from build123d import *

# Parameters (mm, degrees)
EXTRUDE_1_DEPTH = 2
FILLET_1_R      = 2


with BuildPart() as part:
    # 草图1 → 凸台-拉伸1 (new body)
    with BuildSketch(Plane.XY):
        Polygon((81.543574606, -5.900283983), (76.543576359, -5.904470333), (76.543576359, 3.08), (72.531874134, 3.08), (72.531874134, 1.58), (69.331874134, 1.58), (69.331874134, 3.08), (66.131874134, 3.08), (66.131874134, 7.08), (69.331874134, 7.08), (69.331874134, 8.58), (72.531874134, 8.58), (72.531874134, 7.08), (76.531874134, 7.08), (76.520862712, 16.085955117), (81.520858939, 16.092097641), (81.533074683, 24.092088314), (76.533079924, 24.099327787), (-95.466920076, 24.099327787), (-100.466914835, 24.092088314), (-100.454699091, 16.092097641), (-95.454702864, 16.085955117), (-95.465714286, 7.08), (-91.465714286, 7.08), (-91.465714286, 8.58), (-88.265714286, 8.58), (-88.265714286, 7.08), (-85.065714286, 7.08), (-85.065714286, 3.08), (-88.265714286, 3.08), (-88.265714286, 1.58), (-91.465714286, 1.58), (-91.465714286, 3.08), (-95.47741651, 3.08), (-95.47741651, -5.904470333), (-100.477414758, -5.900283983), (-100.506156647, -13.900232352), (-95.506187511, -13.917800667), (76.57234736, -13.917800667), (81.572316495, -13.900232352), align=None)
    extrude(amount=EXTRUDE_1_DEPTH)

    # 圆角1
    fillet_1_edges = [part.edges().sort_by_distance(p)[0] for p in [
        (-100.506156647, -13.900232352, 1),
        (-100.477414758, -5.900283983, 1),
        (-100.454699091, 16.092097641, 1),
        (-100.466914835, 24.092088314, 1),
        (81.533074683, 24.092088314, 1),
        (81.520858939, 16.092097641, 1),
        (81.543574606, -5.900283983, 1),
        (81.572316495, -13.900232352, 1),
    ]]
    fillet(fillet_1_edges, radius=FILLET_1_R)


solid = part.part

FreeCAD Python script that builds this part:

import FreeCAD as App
import Part
import Sketcher
from FreeCAD import Vector
Q = App.Units.Quantity


def edges_at(feature, points):
    """Names of the edges that pass closest to the given points."""
    edges = feature.Shape.Edges
    near = lambda p: min(range(len(edges)), key=lambda i: edges[i].distToShape(Part.Vertex(*p))[0])
    return sorted({f"Edge{near(p) + 1}" for p in points})


def add_polygon(sketch, points):
    """Adds a closed chain of lines whose ends are joined by coincident constraints."""
    first, n = sketch.GeometryCount, len(points)
    for a, b in zip(points, points[1:] + points[:1]):
        sketch.addGeometry(Part.LineSegment(App.Vector(*a, 0), App.Vector(*b, 0)), False)
    for i in range(n):
        sketch.addConstraint(Sketcher.Constraint("Coincident", first + i, 2, first + (i + 1) % n, 1))

doc = App.newDocument("Part")
body = doc.addObject("PartDesign::Body", "Body")

# Sketch on XY plane
sketch1 = body.newObject("Sketcher::SketchObject", "Sketch")
sketch1.AttachmentSupport = (doc.getObject("XY_Plane"), [""])
sketch1.MapMode = "FlatFace"
add_polygon(sketch1, [(81.5, -5.9), (76.5, -5.9), (76.5, 3.1), (72.5, 3.1), (72.5, 1.6), (69.3, 1.6), (69.3, 3.1), (66.1, 3.1), (66.1, 7.1), (69.3, 7.1), (69.3, 8.6), (72.5, 8.6), (72.5, 7.1), (76.5, 7.1), (76.5, 16.1), (81.5, 16.1), (81.5, 24.1), (76.5, 24.1), (-95.5, 24.1), (-100.5, 24.1), (-100.5, 16.1), (-95.5, 16.1), (-95.5, 7.1), (-91.5, 7.1), (-91.5, 8.6), (-88.3, 8.6), (-88.3, 7.1), (-85.1, 7.1), (-85.1, 3.1), (-88.3, 3.1), (-88.3, 1.6), (-91.5, 1.6), (-91.5, 3.1), (-95.5, 3.1), (-95.5, -5.9), (-100.5, -5.9), (-100.5, -13.9), (-95.5, -13.9), (76.6, -13.9), (81.6, -13.9)])  # lines 0-39
sketch1.addConstraint([
    Sketcher.Constraint("Vertical", 1),
    Sketcher.Constraint("Horizontal", 2),
    Sketcher.Constraint("Vertical", 3),
    Sketcher.Constraint("Horizontal", 4),
    Sketcher.Constraint("Vertical", 5),
    Sketcher.Constraint("Horizontal", 6),
    Sketcher.Constraint("Vertical", 7),
    Sketcher.Constraint("Horizontal", 8),
    Sketcher.Constraint("Vertical", 9),
    Sketcher.Constraint("Horizontal", 10),
    Sketcher.Constraint("Vertical", 11),
    Sketcher.Constraint("Horizontal", 12),
    Sketcher.Constraint("Horizontal", 17),
    Sketcher.Constraint("Horizontal", 22),
    Sketcher.Constraint("Vertical", 23),
    Sketcher.Constraint("Horizontal", 24),
    Sketcher.Constraint("Vertical", 25),
    Sketcher.Constraint("Horizontal", 26),
    Sketcher.Constraint("Vertical", 27),
    Sketcher.Constraint("Horizontal", 28),
    Sketcher.Constraint("Vertical", 29),
    Sketcher.Constraint("Horizontal", 30),
    Sketcher.Constraint("Vertical", 31),
    Sketcher.Constraint("Horizontal", 32),
    Sketcher.Constraint("Vertical", 33),
    Sketcher.Constraint("Horizontal", 37),
    Sketcher.Constraint("Horizontal", 2, 2, 5, 2),
    Sketcher.Constraint("Horizontal", 8, 2, 11, 2),
    Sketcher.Constraint("Horizontal", 15, 2, 18, 2),
    Sketcher.Constraint("Horizontal", 14, 2, 19, 2),
    Sketcher.Constraint("Horizontal", 13, 2, 20, 2),
    Sketcher.Constraint("Horizontal", 12, 2, 21, 2),
    Sketcher.Constraint("Horizontal", 10, 2, 23, 2),
    Sketcher.Constraint("Horizontal", 22, 2, 25, 2),
    Sketcher.Constraint("Horizontal", 6, 2, 27, 2),
    Sketcher.Constraint("Horizontal", 4, 2, 29, 2),
    Sketcher.Constraint("Horizontal", 28, 2, 31, 2),
    Sketcher.Constraint("Horizontal", 0, 2, 33, 2),
    Sketcher.Constraint("Horizontal", 35, 2, 38, 2),
    Sketcher.Constraint("Horizontal", 34, 2, 39, 2),
    Sketcher.Constraint("Vertical", 5, 2, 8, 2),
    Sketcher.Constraint("Vertical", 3, 2, 10, 2),
    Sketcher.Constraint("Vertical", 25, 2, 28, 2),
    Sketcher.Constraint("Vertical", 23, 2, 30, 2),
    Sketcher.Constraint("Equal", 4, 6),
    Sketcher.Constraint("Equal", 12, 22),
    Sketcher.Constraint("Equal", 10, 24),
    Sketcher.Constraint("Equal", 24, 26),
    Sketcher.Constraint("Equal", 2, 32),
    Sketcher.Constraint("Equal", 22, 7),
    Sketcher.Constraint("Equal", 5, 9),
    Sketcher.Constraint("Equal", 0, 14),
    Sketcher.Constraint("Equal", 14, 16),
    Sketcher.Constraint("Equal", 16, 18),
    Sketcher.Constraint("Equal", 18, 20),
    Sketcher.Constraint("Equal", 20, 34),
    Sketcher.Constraint("Equal", 19, 35),
    Sketcher.Constraint("Equal", 34, 36),
    Sketcher.Constraint("Equal", 36, 38),
    Sketcher.Constraint("DistanceX", 12, 1, 12, 2, Q("4 mm")),
    Sketcher.Constraint("DistanceX", 17, 2, 17, 1, Q("172 mm")),
    Sketcher.Constraint("Distance", 0, Q("5 mm")),
    Sketcher.Constraint("Distance", 15, Q("8 mm")),
    Sketcher.Constraint("Distance", 39, Q("8 mm")),
    Sketcher.Constraint("DistanceX", 4, 2, 4, 1, Q("3.2 mm")),
    Sketcher.Constraint("DistanceY", 3, 2, 3, 1, Q("1.5 mm")),
    Sketcher.Constraint("DistanceY", -1, 1, 1, 2, Q("3.08 mm")),
    Sketcher.Constraint("DistanceY", 1, 1, 1, 2, Q("8.98447 mm")),
    Sketcher.Constraint("DistanceX", 19, 2, -1, 1, Q("100.454699 mm")),
    Sketcher.Constraint("DistanceY", 36, 2, -1, 1, Q("13.917801 mm")),
    Sketcher.Constraint("DistanceX", 12, 2, 15, 2, Q("5.001201 mm")),
    Sketcher.Constraint("DistanceX", 18, 2, 21, 2, Q("5.001201 mm")),
    Sketcher.Constraint("DistanceX", 34, 2, 30, 2, Q("9.0117 mm")),
    Sketcher.Constraint("Distance", 13, Q("9.005962 mm")),
    Sketcher.Constraint("DistanceX", 37, 1, 37, 2, Q("172.078535 mm")),
    Sketcher.Constraint("DistanceX", -1, 1, 14, 2, Q("81.520859 mm")),
    Sketcher.Constraint("DistanceY", -1, 1, 15, 2, Q("24.092088 mm")),
    Sketcher.Constraint("DistanceX", -1, 1, 16, 2, Q("76.53308 mm")),
    Sketcher.Constraint("DistanceY", 15, 2, 16, 2, Q("0.007239 mm")),
    Sketcher.Constraint("DistanceY", 36, 2, 35, 2, Q("0.017568 mm")),
])
pad1 = body.newObject("PartDesign::Pad", "Pad")
pad1.Profile = sketch1
pad1.Length = 2
doc.recompute()

fillet = body.newObject("PartDesign::Fillet", "Fillet")
fillet.Base = (pad1, edges_at(pad1, [
    (-100.506, -13.9, 1),
    (-100.477, -5.9, 1),
    (-100.455, 16.092, 1),
    (-100.467, 24.092, 1),
    (81.533, 24.092, 1),
    (81.521, 16.092, 1),
    (81.544, -5.9, 1),
    (81.572, -13.9, 1),
]))
fillet.Radius = 2

doc.recompute()
